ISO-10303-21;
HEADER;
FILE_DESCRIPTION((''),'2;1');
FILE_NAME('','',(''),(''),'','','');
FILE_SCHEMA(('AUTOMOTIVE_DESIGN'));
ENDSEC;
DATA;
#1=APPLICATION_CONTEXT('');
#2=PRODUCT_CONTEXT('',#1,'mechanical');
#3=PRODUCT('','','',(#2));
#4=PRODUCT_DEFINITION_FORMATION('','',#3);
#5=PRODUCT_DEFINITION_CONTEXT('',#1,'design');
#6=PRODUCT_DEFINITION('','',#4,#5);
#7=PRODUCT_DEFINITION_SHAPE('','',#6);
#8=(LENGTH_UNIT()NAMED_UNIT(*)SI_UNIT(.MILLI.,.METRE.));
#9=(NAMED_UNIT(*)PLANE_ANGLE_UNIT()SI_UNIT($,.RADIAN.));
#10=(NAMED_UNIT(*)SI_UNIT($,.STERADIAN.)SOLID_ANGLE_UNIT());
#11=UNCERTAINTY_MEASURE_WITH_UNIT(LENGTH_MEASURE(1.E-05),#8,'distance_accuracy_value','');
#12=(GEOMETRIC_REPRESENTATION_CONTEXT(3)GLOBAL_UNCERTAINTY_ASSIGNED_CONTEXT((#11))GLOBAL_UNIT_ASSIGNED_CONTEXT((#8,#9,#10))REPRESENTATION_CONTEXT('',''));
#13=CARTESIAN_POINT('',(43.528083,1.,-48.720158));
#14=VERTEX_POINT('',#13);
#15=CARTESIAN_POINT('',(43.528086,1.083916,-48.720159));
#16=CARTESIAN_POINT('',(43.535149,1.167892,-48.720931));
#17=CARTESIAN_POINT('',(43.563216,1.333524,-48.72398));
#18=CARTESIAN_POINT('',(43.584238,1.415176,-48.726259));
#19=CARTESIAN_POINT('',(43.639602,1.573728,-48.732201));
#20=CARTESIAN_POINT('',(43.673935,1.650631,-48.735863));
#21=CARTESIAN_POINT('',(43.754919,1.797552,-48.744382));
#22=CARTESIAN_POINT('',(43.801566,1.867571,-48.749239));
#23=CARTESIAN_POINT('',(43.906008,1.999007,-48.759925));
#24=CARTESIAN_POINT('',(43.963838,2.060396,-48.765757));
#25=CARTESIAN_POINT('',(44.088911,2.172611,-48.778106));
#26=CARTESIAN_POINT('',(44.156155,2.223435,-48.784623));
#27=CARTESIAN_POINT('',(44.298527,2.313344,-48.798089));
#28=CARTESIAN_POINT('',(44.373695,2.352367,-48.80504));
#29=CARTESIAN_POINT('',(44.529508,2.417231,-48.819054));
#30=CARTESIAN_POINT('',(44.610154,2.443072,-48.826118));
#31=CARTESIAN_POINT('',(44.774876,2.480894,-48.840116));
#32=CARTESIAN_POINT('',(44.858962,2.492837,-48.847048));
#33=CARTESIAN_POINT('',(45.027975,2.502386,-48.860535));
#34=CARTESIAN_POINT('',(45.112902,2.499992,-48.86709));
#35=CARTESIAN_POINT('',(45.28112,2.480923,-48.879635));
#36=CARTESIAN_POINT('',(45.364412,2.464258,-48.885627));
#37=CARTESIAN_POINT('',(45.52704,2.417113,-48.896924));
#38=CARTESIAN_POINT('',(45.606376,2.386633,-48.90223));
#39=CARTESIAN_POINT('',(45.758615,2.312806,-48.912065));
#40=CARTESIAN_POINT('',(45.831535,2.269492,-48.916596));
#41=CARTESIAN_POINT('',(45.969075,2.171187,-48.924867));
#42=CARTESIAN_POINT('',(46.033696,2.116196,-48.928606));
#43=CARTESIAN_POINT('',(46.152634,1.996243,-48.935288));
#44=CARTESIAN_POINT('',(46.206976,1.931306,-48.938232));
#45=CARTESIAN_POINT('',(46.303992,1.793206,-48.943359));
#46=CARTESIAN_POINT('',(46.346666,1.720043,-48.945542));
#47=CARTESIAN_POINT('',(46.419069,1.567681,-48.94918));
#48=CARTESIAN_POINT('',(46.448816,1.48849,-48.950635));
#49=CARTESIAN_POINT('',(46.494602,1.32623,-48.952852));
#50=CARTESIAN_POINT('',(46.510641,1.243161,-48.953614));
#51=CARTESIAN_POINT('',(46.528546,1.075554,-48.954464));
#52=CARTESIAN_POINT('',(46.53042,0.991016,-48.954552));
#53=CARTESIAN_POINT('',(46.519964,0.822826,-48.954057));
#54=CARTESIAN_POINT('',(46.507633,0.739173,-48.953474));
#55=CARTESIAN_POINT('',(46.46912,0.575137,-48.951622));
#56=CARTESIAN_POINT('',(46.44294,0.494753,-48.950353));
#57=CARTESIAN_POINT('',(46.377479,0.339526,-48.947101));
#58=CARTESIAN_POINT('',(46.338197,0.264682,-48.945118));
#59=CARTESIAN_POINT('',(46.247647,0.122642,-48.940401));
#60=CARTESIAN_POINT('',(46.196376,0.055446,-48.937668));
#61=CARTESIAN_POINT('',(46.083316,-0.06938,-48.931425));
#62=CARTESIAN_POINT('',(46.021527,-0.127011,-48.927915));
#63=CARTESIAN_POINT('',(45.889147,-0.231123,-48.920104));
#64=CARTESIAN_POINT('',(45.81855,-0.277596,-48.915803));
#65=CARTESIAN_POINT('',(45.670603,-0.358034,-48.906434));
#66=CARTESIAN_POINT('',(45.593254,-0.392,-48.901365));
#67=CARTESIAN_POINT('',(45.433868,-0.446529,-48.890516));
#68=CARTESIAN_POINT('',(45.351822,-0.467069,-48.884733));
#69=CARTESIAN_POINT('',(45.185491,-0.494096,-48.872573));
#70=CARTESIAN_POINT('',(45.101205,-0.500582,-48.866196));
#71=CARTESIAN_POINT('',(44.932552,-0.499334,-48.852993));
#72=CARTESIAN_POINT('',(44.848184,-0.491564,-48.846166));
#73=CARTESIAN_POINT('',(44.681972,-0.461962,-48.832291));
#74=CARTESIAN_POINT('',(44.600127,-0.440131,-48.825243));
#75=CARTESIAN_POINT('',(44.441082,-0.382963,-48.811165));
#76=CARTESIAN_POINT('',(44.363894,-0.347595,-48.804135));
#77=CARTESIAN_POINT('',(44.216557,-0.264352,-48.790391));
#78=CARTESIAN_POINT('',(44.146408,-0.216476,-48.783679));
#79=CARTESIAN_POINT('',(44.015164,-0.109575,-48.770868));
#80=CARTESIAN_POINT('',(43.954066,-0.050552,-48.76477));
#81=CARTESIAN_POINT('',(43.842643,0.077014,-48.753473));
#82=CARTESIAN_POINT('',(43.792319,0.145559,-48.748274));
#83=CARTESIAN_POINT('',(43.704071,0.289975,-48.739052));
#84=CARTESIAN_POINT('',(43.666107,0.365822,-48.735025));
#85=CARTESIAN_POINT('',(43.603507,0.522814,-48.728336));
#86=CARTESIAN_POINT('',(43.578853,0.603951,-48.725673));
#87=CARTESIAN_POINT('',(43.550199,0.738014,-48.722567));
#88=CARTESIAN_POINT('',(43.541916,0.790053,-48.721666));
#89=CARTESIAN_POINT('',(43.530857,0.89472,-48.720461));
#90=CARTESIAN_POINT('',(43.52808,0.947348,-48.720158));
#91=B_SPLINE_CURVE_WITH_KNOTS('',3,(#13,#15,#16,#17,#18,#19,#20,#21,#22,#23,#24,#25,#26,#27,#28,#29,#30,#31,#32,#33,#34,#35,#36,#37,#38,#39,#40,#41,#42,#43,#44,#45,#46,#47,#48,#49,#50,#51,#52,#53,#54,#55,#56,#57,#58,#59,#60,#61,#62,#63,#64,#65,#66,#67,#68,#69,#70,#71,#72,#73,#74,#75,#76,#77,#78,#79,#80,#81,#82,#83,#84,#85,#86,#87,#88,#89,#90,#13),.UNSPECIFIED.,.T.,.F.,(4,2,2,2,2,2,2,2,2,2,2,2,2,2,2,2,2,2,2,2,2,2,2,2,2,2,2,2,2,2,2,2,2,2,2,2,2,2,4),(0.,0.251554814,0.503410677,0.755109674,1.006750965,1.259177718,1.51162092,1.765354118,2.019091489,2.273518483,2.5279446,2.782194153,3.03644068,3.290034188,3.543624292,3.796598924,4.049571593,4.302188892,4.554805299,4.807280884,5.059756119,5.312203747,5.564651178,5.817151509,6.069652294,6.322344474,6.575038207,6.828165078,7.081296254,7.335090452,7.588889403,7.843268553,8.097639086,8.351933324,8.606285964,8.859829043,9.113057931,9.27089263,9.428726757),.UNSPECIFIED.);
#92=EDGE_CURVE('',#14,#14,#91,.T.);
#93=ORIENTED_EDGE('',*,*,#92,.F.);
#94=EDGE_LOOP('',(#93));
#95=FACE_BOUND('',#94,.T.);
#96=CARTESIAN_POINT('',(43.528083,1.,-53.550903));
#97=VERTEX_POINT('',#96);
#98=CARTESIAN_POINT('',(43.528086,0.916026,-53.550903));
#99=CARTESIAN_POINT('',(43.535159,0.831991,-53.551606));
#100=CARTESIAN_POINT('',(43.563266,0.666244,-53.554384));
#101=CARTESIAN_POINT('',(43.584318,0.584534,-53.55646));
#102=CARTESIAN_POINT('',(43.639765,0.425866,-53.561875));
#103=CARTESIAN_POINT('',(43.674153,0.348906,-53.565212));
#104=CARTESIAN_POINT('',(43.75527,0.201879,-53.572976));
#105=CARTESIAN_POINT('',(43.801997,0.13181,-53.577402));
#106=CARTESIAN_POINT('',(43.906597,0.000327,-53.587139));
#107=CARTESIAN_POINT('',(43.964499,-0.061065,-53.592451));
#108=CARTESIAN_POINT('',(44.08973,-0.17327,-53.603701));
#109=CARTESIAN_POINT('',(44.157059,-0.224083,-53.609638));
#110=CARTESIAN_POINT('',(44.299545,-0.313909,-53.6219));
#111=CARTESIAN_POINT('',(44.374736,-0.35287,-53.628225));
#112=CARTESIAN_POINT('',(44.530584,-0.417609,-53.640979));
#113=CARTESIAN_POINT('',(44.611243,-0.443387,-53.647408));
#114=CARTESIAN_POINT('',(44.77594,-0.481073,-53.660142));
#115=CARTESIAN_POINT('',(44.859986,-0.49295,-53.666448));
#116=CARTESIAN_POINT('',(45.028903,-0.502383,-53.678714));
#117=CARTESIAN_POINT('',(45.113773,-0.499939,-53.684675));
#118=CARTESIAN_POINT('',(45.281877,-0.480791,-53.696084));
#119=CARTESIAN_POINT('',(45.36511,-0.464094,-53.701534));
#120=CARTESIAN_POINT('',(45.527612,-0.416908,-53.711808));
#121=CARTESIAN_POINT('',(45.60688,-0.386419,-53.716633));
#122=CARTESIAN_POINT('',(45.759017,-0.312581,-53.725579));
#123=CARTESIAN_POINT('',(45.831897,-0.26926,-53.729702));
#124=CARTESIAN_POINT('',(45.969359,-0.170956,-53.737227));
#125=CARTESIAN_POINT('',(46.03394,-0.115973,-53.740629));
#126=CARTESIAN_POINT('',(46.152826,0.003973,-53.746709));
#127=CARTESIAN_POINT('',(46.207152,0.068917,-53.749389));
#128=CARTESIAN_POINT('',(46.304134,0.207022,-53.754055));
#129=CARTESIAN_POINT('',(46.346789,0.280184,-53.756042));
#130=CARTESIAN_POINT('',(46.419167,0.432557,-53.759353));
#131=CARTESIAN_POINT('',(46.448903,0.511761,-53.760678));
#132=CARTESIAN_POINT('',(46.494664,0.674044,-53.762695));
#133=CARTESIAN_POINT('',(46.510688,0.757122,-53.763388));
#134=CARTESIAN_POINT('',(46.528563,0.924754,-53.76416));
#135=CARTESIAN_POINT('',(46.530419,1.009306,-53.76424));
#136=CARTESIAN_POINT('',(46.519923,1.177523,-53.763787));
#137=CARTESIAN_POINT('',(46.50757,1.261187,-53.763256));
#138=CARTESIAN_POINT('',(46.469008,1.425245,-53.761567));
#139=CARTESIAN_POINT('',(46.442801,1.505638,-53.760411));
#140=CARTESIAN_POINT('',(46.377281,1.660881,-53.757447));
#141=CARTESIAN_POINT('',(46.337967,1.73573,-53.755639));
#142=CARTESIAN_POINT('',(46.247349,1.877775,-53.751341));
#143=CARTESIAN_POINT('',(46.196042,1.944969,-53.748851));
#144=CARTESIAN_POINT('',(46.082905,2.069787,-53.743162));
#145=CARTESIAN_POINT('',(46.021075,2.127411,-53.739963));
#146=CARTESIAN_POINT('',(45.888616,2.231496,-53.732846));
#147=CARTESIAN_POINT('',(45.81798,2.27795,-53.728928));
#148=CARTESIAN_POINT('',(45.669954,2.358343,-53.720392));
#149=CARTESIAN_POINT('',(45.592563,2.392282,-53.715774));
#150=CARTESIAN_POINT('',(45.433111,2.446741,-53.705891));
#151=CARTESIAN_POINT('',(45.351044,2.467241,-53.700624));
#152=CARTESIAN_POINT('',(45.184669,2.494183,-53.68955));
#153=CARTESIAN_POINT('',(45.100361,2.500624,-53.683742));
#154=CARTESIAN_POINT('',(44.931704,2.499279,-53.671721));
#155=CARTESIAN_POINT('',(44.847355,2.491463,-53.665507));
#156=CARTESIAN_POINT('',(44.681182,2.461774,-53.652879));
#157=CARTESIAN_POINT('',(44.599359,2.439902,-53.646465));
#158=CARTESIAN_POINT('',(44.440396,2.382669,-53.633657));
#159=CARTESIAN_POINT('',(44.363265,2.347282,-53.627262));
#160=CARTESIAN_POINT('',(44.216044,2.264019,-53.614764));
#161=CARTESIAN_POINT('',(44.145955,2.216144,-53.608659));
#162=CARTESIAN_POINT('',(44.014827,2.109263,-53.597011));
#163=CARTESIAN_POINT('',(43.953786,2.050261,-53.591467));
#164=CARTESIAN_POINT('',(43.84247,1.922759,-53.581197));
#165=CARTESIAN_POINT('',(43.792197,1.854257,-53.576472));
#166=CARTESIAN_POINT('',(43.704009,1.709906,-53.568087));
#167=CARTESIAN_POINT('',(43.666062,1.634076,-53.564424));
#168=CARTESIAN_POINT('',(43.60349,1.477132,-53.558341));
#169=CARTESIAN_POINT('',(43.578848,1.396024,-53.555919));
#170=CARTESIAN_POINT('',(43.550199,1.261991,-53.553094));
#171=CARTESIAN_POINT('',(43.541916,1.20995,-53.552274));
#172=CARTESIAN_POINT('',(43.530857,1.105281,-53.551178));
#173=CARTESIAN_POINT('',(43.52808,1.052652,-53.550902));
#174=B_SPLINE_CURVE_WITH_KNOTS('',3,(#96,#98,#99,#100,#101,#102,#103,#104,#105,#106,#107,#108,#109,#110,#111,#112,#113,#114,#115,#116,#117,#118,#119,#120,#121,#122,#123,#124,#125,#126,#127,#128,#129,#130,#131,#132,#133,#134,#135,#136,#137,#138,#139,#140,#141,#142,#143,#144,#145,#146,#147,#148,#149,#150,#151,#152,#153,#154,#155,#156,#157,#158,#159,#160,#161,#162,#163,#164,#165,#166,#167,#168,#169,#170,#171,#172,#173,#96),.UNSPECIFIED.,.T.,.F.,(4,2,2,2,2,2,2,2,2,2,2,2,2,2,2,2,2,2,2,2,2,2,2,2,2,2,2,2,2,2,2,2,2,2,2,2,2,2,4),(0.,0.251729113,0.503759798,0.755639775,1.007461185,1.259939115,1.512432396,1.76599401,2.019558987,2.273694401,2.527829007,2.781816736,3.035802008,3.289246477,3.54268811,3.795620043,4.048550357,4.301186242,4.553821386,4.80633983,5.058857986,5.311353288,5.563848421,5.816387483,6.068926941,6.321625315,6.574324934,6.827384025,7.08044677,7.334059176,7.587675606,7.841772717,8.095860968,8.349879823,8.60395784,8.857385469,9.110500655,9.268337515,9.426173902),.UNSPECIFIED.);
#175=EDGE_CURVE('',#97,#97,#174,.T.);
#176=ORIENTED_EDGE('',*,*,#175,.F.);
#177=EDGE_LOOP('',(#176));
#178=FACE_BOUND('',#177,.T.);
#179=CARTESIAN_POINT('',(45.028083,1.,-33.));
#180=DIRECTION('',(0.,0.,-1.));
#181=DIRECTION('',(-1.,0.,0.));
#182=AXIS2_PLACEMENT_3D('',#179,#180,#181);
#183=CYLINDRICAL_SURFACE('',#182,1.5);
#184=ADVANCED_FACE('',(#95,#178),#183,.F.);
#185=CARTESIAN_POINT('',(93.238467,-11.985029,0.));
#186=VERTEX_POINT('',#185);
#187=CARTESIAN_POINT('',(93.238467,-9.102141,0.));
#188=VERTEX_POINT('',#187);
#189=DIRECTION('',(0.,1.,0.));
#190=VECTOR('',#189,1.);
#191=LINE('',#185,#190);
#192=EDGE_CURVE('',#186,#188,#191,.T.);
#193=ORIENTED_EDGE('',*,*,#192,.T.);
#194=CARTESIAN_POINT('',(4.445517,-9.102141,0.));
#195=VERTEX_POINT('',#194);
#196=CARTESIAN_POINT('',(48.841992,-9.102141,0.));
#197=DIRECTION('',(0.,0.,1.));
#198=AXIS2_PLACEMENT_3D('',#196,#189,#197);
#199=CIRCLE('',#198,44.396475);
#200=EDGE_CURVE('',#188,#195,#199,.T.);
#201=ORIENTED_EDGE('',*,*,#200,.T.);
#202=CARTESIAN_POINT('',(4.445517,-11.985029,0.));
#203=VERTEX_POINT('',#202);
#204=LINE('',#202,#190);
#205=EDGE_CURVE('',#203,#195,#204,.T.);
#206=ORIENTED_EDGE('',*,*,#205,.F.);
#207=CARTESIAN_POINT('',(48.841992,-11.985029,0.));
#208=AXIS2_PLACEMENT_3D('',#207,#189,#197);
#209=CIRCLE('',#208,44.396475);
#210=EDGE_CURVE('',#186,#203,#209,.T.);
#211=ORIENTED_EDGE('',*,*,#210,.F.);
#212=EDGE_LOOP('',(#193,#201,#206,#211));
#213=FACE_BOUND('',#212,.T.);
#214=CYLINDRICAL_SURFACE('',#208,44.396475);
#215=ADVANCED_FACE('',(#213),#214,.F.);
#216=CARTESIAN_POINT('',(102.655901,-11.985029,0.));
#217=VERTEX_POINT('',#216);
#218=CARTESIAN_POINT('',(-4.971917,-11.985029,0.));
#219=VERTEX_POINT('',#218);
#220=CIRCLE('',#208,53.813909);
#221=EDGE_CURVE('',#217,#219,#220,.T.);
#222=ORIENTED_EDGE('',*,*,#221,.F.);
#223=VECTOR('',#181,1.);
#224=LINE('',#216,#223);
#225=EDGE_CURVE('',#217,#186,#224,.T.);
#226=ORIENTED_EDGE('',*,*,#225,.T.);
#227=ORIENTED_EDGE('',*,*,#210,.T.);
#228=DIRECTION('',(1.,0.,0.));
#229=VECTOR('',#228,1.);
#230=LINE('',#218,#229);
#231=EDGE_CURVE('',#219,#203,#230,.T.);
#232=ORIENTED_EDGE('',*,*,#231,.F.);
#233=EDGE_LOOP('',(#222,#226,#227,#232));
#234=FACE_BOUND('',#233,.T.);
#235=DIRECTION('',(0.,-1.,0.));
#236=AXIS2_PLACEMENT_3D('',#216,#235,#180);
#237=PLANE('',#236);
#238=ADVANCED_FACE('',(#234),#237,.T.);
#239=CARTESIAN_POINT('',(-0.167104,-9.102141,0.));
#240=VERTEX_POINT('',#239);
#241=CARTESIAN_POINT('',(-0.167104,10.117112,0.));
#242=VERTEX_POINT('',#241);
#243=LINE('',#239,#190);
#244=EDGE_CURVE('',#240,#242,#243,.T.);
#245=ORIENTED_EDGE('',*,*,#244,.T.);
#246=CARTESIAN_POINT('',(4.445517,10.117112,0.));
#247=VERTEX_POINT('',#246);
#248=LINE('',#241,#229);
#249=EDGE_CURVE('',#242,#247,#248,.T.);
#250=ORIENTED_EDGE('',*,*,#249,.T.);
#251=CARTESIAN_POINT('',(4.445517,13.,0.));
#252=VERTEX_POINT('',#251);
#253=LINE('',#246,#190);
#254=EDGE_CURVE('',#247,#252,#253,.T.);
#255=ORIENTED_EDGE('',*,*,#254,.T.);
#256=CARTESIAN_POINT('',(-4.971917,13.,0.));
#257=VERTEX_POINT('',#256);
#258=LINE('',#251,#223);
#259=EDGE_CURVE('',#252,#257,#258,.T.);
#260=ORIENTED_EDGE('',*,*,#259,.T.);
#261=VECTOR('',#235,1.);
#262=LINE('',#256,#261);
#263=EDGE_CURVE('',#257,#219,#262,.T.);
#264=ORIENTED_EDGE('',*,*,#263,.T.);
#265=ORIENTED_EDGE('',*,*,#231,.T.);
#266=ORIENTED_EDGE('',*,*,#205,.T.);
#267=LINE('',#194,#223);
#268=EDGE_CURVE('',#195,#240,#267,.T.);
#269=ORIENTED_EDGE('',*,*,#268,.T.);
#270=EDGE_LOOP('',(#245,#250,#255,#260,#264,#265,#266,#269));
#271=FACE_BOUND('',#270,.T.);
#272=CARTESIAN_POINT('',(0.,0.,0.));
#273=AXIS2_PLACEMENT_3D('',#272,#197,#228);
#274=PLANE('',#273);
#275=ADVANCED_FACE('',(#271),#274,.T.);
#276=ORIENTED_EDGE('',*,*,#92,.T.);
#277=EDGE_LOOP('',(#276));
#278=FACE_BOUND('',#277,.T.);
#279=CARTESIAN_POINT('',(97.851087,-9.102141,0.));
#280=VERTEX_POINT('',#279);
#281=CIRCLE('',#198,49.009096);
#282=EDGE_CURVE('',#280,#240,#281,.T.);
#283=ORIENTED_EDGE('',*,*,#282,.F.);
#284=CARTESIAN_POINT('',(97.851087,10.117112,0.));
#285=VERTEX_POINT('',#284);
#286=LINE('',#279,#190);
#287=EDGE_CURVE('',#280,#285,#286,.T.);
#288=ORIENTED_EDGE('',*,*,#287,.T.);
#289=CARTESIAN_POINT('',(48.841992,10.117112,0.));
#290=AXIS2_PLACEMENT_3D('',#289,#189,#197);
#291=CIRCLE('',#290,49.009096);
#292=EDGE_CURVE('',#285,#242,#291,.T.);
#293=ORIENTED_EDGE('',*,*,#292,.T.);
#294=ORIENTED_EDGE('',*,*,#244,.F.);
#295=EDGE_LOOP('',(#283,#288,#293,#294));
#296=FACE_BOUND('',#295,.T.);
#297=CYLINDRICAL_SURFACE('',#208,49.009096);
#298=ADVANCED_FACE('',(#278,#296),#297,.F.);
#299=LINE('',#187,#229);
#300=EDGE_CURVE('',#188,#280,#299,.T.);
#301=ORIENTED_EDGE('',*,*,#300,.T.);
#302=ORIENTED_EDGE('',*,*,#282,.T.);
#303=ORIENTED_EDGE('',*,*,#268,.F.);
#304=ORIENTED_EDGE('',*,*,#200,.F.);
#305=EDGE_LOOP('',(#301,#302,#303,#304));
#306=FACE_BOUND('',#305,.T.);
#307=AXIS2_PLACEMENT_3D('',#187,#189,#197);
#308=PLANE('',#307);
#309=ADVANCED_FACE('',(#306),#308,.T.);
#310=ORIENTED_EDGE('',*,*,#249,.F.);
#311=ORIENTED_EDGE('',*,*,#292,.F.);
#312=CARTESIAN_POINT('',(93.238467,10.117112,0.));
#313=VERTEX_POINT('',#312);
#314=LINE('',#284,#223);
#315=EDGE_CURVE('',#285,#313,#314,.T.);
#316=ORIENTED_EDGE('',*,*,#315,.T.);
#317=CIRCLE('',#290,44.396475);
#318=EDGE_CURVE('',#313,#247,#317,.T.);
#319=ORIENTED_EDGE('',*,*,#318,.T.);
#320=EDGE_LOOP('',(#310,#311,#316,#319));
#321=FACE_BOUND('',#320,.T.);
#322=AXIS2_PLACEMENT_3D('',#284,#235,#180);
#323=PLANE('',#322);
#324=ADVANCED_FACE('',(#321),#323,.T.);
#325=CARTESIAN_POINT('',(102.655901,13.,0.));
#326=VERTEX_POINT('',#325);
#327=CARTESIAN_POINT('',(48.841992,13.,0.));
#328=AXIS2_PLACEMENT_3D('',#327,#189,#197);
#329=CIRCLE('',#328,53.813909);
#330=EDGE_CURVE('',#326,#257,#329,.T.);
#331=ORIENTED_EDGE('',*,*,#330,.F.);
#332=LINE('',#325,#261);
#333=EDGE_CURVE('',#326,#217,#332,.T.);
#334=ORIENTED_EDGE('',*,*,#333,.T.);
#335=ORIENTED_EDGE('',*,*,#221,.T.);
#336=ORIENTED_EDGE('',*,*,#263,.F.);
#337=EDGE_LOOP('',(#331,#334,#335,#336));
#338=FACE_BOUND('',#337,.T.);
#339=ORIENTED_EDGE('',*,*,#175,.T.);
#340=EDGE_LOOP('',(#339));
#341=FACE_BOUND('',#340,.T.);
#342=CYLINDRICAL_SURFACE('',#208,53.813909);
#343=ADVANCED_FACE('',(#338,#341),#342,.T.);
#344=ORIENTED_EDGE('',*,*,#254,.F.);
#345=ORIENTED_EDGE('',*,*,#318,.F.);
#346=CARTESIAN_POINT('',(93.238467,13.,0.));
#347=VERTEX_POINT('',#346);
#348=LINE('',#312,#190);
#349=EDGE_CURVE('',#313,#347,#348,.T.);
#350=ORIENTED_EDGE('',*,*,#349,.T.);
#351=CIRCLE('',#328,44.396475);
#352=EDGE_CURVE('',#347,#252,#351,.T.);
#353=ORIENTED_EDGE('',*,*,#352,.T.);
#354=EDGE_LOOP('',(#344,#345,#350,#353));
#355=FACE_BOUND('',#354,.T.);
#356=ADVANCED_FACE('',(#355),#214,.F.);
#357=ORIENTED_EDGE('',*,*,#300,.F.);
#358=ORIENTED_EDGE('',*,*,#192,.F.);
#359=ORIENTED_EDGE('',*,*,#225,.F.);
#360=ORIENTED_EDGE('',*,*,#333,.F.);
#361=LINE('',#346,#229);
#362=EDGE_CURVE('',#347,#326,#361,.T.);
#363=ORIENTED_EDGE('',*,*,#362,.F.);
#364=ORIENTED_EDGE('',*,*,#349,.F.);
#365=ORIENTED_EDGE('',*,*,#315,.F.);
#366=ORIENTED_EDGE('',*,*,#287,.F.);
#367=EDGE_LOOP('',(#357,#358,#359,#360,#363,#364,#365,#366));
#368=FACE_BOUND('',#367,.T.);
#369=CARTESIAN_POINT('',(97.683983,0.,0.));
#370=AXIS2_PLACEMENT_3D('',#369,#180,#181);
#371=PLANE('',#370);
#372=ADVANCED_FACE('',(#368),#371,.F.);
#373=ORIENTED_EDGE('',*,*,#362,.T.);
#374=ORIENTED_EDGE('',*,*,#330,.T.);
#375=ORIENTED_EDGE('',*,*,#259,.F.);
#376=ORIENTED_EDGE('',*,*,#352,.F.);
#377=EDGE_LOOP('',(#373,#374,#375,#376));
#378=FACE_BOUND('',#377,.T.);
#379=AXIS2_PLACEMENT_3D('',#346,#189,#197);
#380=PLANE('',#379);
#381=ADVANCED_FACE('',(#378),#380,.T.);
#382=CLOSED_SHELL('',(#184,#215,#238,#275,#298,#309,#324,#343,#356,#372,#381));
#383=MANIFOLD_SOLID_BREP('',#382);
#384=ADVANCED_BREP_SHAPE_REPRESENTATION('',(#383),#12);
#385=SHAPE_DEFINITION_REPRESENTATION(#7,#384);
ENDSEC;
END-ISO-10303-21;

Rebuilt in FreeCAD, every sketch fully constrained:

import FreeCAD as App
import Part
import Sketcher

V = App.Vector
Q = App.Units.Quantity

doc = App.newDocument("Part")
body = doc.addObject("PartDesign::Body", "Body")

# Sketch on XY plane
sketch1 = doc.addObject("Sketcher::SketchObject", "Sketch")
body.addObject(sketch1)
sketch1.AttachmentSupport = (doc.XY_Plane, [""])
sketch1.MapMode = "FlatFace"
sketch1.addGeometry([
    Part.LineSegment(V(-4.971917, -11.985029, 0), V(4.445517, -11.985029, 0)),  # 0
    Part.LineSegment(V(4.445517, -11.985029, 0), V(4.445517, -9.102141, 0)),  # 1
    Part.LineSegment(V(4.445517, -9.102141, 0), V(-0.167104, -9.102141, 0)),  # 2
    Part.LineSegment(V(-0.167104, -9.102141, 0), V(-0.167104, 10.117112, 0)),  # 3
    Part.LineSegment(V(-0.167104, 10.117112, 0), V(4.445517, 10.117112, 0)),  # 4
    Part.LineSegment(V(4.445517, 10.117112, 0), V(4.445517, 13, 0)),  # 5
    Part.LineSegment(V(4.445517, 13, 0), V(-4.971917, 13, 0)),  # 6
    Part.LineSegment(V(-4.971917, 13, 0), V(-4.971917, -11.985029, 0)),  # 7
], False)
sketch1.addGeometry(Part.LineSegment(V(48.841992, 13, 0), V(48.841992, -11.985029, 0)), True)  # axis
sketch1.addConstraint([
    Sketcher.Constraint("Coincident", 0, 2, 1, 1),
    Sketcher.Constraint("Coincident", 1, 2, 2, 1),
    Sketcher.Constraint("Coincident", 2, 2, 3, 1),
    Sketcher.Constraint("Coincident", 3, 2, 4, 1),
    Sketcher.Constraint("Coincident", 4, 2, 5, 1),
    Sketcher.Constraint("Coincident", 5, 2, 6, 1),
    Sketcher.Constraint("Coincident", 6, 2, 7, 1),
    Sketcher.Constraint("Coincident", 7, 2, 0, 1),
    Sketcher.Constraint("Horizontal", 0),
    Sketcher.Constraint("Vertical", 1),
    Sketcher.Constraint("Horizontal", 2),
    Sketcher.Constraint("Vertical", 3),
    Sketcher.Constraint("Horizontal", 4),
    Sketcher.Constraint("Vertical", 5),
    Sketcher.Constraint("Horizontal", 6),
    Sketcher.Constraint("Vertical", 7),
    Sketcher.Constraint("Vertical", 8),
    Sketcher.Constraint("Horizontal", 6, 2, 8, 1),
    Sketcher.Constraint("Horizontal", 7, 2, 8, 2),
    Sketcher.Constraint("Vertical", 1, 2, 4, 2),
    Sketcher.Constraint("Equal", 1, 5),
    Sketcher.Constraint("DistanceY", -1, 1, 5, 2, Q("13 mm")),
    Sketcher.Constraint("DistanceX", 2, 2, 2, 1, Q("4.612621 mm")),
    Sketcher.Constraint("DistanceY", 7, 2, 7, 1, Q("24.985029 mm")),
    Sketcher.Constraint("DistanceX", 0, 1, 0, 2, Q("9.417434 mm")),
    Sketcher.Constraint("DistanceY", 1, 1, 1, 2, Q("2.882888 mm")),
    Sketcher.Constraint("DistanceX", -1, 1, 8, 1, Q("48.841992 mm")),
    Sketcher.Constraint("DistanceX", -1, 1, 0, 2, Q("4.445517 mm")),
])
revolution = doc.addObject("PartDesign::Revolution", "Revolution")
body.addObject(revolution)
revolution.Profile = sketch1
revolution.ReferenceAxis = (sketch1, ["Axis0"])
revolution.Angle = 180

# Sketch on XY plane
sketch2 = doc.addObject("Sketcher::SketchObject", "Sketch001")
body.addObject(sketch2)
sketch2.AttachmentSupport = (doc.XY_Plane, [""])
sketch2.MapMode = "FlatFace"
sketch2.AttachmentOffset = App.Placement(V(0, 0, -54), App.Rotation())
sketch2.addGeometry(Part.Circle(V(45.028083, 1, 0), V(0, 0, 1), 1.5), False)
sketch2.addConstraint([
    Sketcher.Constraint("Diameter", 0, Q("3 mm")),
    Sketcher.Constraint("DistanceY", -1, 1, 0, 3, Q("1 mm")),
    Sketcher.Constraint("DistanceX", -1, 1, 0, 3, Q("45.028083 mm")),
])
pocket1 = doc.addObject("PartDesign::Pocket", "Pocket")
body.addObject(pocket1)
pocket1.Profile = sketch2
pocket1.Length = 21
pocket1.Reversed = True

doc.recompute()
